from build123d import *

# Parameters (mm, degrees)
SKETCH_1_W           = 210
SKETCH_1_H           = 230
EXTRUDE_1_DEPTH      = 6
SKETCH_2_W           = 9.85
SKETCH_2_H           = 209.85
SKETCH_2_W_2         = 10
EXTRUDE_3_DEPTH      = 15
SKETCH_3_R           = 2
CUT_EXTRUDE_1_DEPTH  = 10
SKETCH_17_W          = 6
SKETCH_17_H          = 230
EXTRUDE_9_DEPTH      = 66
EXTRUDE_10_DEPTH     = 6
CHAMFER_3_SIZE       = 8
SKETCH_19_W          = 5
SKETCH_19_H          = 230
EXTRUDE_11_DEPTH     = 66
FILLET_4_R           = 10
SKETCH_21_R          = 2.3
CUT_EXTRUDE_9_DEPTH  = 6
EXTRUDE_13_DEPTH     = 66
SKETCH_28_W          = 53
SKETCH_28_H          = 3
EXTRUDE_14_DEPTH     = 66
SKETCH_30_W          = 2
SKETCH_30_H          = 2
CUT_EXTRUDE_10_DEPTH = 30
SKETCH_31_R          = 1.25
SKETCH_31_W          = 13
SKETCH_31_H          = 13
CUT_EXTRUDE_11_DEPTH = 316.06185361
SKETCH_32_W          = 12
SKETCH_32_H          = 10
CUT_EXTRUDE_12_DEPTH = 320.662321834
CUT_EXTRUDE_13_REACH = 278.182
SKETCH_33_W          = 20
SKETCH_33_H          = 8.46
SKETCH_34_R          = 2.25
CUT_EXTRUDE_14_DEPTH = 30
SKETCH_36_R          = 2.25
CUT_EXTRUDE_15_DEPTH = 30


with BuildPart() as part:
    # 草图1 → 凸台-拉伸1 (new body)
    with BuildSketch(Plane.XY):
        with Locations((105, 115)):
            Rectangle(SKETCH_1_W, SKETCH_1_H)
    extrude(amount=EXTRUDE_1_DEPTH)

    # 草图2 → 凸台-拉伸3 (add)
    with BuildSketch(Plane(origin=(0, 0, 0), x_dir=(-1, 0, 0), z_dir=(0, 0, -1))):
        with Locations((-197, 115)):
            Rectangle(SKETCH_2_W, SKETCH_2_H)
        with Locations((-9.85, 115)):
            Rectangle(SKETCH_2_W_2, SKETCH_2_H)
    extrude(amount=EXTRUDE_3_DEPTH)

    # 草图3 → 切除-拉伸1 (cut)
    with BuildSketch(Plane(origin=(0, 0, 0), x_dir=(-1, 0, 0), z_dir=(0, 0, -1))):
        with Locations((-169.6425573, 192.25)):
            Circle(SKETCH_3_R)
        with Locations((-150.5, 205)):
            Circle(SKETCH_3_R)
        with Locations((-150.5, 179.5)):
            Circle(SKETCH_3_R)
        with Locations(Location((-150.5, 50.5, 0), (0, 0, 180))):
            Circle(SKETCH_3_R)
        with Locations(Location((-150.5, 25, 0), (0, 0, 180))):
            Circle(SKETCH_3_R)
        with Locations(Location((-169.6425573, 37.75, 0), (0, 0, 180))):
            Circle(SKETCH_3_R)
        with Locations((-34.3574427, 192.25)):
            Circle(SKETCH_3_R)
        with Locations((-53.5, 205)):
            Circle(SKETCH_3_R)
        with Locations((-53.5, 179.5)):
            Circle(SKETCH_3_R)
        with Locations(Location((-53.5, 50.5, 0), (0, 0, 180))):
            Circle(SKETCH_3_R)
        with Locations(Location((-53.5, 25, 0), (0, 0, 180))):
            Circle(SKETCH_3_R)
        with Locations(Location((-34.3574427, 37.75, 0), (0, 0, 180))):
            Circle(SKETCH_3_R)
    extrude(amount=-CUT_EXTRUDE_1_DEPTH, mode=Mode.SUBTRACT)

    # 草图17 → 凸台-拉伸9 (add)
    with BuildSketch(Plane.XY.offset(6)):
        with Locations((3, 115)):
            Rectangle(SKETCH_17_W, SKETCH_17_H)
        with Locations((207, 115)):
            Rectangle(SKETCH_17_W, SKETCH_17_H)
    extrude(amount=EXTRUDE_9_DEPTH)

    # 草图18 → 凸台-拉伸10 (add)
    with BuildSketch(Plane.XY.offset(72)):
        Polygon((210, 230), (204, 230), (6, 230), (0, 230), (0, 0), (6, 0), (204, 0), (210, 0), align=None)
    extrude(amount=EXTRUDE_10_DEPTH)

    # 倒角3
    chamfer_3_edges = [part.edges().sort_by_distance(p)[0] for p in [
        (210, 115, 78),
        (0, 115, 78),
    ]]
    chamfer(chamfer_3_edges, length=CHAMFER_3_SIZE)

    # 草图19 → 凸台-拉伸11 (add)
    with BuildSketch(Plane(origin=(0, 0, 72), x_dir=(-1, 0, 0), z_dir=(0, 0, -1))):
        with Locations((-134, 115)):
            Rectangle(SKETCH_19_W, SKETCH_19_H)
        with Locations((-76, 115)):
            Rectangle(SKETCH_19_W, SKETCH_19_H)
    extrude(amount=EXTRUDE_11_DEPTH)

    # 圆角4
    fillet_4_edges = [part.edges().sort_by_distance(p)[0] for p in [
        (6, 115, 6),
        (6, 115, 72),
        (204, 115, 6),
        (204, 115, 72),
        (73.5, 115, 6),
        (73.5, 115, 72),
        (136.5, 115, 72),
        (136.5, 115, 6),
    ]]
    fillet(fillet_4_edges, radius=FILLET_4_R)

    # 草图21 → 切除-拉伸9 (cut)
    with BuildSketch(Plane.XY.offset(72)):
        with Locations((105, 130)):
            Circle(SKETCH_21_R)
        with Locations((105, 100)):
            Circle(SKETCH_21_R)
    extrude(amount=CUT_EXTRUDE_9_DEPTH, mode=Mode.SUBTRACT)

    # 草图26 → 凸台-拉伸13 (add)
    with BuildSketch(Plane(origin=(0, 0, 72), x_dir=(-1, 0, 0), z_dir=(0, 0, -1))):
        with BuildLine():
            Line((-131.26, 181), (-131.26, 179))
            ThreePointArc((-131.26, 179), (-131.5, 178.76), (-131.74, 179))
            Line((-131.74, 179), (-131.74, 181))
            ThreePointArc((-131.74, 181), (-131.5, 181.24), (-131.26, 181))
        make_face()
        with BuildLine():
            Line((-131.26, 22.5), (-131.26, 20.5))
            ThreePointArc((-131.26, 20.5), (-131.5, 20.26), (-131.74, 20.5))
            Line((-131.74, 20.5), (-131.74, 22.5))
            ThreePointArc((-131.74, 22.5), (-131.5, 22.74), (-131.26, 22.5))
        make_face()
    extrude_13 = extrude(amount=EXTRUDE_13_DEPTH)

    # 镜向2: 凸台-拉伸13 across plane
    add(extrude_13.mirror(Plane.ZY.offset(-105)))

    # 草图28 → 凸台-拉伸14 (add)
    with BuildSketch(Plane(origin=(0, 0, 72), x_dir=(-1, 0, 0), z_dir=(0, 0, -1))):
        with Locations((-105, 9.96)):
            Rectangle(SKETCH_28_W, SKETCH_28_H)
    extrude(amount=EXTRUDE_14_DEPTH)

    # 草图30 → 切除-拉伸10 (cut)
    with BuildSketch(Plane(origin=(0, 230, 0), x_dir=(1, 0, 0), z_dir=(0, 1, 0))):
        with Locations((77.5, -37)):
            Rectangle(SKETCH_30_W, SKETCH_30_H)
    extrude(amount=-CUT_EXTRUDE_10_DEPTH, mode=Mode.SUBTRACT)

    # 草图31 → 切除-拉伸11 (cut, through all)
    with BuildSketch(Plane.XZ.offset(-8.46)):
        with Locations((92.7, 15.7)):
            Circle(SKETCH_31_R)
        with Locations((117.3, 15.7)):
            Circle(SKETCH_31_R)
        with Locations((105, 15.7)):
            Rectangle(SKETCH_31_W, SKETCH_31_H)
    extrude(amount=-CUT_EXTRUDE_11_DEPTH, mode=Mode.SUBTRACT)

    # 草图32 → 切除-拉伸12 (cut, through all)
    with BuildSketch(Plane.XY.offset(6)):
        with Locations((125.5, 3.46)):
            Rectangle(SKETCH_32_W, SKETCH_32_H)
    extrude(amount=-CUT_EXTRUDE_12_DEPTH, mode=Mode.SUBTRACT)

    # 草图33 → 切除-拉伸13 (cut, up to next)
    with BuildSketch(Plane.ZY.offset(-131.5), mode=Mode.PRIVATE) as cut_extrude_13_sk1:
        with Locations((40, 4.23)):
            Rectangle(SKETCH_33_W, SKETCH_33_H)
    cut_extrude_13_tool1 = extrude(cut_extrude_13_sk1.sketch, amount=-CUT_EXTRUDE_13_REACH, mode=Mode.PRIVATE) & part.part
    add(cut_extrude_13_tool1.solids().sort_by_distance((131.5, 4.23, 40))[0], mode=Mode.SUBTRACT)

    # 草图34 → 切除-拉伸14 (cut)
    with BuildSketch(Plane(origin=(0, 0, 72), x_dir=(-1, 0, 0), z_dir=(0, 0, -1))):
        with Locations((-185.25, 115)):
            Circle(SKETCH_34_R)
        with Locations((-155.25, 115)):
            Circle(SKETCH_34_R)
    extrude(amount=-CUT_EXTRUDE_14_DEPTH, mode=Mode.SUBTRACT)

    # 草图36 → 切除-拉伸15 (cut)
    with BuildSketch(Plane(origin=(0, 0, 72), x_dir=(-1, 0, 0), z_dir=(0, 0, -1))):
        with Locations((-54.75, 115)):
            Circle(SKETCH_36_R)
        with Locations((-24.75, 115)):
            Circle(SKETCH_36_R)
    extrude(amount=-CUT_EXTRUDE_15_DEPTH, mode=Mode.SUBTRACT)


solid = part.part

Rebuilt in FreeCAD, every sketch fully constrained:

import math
import FreeCAD as App
import Part
import Sketcher

V = App.Vector


def edges_at(feature, points):
    """Names of the edges that pass closest to the given points."""
    edges = feature.Shape.Edges
    near = lambda p: min(range(len(edges)), key=lambda i: edges[i].distToShape(Part.Vertex(*p))[0])
    return sorted({f"Edge{near(p) + 1}" for p in points})

doc = App.newDocument("Part")
body = doc.addObject("PartDesign::Body", "Body")

# Sketch on XY plane
sketch1 = body.newObject("Sketcher::SketchObject", "Sketch")
sketch1.AttachmentSupport = (doc.getObject("XY_Plane"), [""])
sketch1.MapMode = "FlatFace"
sketch1.addGeometry(Part.LineSegment(V(0, 230, 0), V(0, 0, 0)), False)
sketch1.addGeometry(Part.LineSegment(V(0, 0, 0), V(210, 0, 0)), False)
sketch1.addGeometry(Part.LineSegment(V(210, 0, 0), V(210, 230, 0)), False)
sketch1.addGeometry(Part.LineSegment(V(210, 230, 0), V(0, 230, 0)), False)
sketch1.addConstraint(Sketcher.Constraint("Coincident", 0, 2, 1, 1))
sketch1.addConstraint(Sketcher.Constraint("Coincident", 1, 2, 2, 1))
sketch1.addConstraint(Sketcher.Constraint("Coincident", 2, 2, 3, 1))
sketch1.addConstraint(Sketcher.Constraint("Coincident", 3, 2, 0, 1))
sketch1.addConstraint(Sketcher.Constraint("Vertical", 0))
sketch1.addConstraint(Sketcher.Constraint("Horizontal", 1))
sketch1.addConstraint(Sketcher.Constraint("Vertical", 2))
sketch1.addConstraint(Sketcher.Constraint("Horizontal", 3))
sketch1.addConstraint(Sketcher.Constraint("Coincident", 0, 2, -1, 1))
sketch1.addConstraint(Sketcher.Constraint("DistanceX", 1, 1, 1, 2, 210.0))
sketch1.addConstraint(Sketcher.Constraint("DistanceY", 0, 2, 0, 1, 230.0))
pad1 = body.newObject("PartDesign::Pad", "Pad")
pad1.Profile = sketch1
pad1.Length = 6

# Sketch on XY plane
sketch2 = body.newObject("Sketcher::SketchObject", "Sketch001")
sketch2.AttachmentSupport = (doc.getObject("XY_Plane"), [""])
sketch2.MapMode = "FlatFace"
sketch2.addGeometry(Part.LineSegment(V(202, 220, 0), V(202, 10, 0)), False)
sketch2.addGeometry(Part.LineSegment(V(202, 10, 0), V(192, 10, 0)), False)
sketch2.addGeometry(Part.LineSegment(V(192, 10, 0), V(192, 220, 0)), False)
sketch2.addGeometry(Part.LineSegment(V(192, 220, 0), V(202, 220, 0)), False)
sketch2.addGeometry(Part.LineSegment(V(15, 220, 0), V(15, 10, 0)), False)
sketch2.addGeometry(Part.LineSegment(V(15, 10, 0), V(5, 10, 0)), False)
sketch2.addGeometry(Part.LineSegment(V(5, 10, 0), V(5, 220, 0)), False)
sketch2.addGeometry(Part.LineSegment(V(5, 220, 0), V(15, 220, 0)), False)
sketch2.addConstraint(Sketcher.Constraint("Coincident", 0, 2, 1, 1))
sketch2.addConstraint(Sketcher.Constraint("Coincident", 1, 2, 2, 1))
sketch2.addConstraint(Sketcher.Constraint("Coincident", 2, 2, 3, 1))
sketch2.addConstraint(Sketcher.Constraint("Coincident", 3, 2, 0, 1))
sketch2.addConstraint(Sketcher.Constraint("Coincident", 4, 2, 5, 1))
sketch2.addConstraint(Sketcher.Constraint("Coincident", 5, 2, 6, 1))
sketch2.addConstraint(Sketcher.Constraint("Coincident", 6, 2, 7, 1))
sketch2.addConstraint(Sketcher.Constraint("Coincident", 7, 2, 4, 1))
sketch2.addConstraint(Sketcher.Constraint("Vertical", 0))
sketch2.addConstraint(Sketcher.Constraint("Horizontal", 1))
sketch2.addConstraint(Sketcher.Constraint("Vertical", 2))
sketch2.addConstraint(Sketcher.Constraint("Horizontal", 3))
sketch2.addConstraint(Sketcher.Constraint("Vertical", 4))
sketch2.addConstraint(Sketcher.Constraint("Horizontal", 5))
sketch2.addConstraint(Sketcher.Constraint("Vertical", 6))
sketch2.addConstraint(Sketcher.Constraint("Horizontal", 7))
sketch2.addConstraint(Sketcher.Constraint("Horizontal", 1, 2, 4, 2))
sketch2.addConstraint(Sketcher.Constraint("Horizontal", 3, 2, 6, 2))
sketch2.addConstraint(Sketcher.Constraint("DistanceX", 5, 2, 5, 1, 10.0))
sketch2.addConstraint(Sketcher.Constraint("DistanceX", 1, 2, 1, 1, 9.85))
sketch2.addConstraint(Sketcher.Constraint("DistanceY", 0, 2, 0, 1, 209.85))
sketch2.addConstraint(Sketcher.Constraint("DistanceX", -1, 1, 4, 2, 14.85))
sketch2.addConstraint(Sketcher.Constraint("DistanceX", -1, 1, 0, 2, 201.925))
sketch2.addConstraint(Sketcher.Constraint("DistanceY", -1, 1, 0, 2, 10.075))
pad2 = body.newObject("PartDesign::Pad", "Pad001")
pad2.Profile = sketch2
pad2.Length = 15
pad2.Reversed = True

# Sketch on XY plane
sketch3 = body.newObject("Sketcher::SketchObject", "Sketch002")
sketch3.AttachmentSupport = (doc.getObject("XY_Plane"), [""])
sketch3.MapMode = "FlatFace"
sketch3.addGeometry(Part.Circle(V(169.6, 192.2, 0), V(0, 0, 1), 2), False)
sketch3.addGeometry(Part.Circle(V(150.5, 205, 0), V(0, 0, 1), 2), False)
sketch3.addGeometry(Part.Circle(V(150.5, 179.5, 0), V(0, 0, 1), 2), False)
sketch3.addGeometry(Part.Circle(V(150.5, 50.5, 0), V(0, 0, 1), 2), False)
sketch3.addGeometry(Part.Circle(V(150.5, 25, 0), V(0, 0, 1), 2), False)
sketch3.addGeometry(Part.Circle(V(169.6, 37.8, 0), V(0, 0, 1), 2), False)
sketch3.addGeometry(Part.Circle(V(34.4, 192.2, 0), V(0, 0, 1), 2), False)
sketch3.addGeometry(Part.Circle(V(53.5, 205, 0), V(0, 0, 1), 2), False)
sketch3.addGeometry(Part.Circle(V(53.5, 179.5, 0), V(0, 0, 1), 2), False)
sketch3.addGeometry(Part.Circle(V(53.5, 50.5, 0), V(0, 0, 1), 2), False)
sketch3.addGeometry(Part.Circle(V(53.5, 25, 0), V(0, 0, 1), 2), False)
sketch3.addGeometry(Part.Circle(V(34.4, 37.8, 0), V(0, 0, 1), 2), False)
sketch3.addConstraint(Sketcher.Constraint("Equal", 0, 1))
sketch3.addConstraint(Sketcher.Constraint("Equal", 1, 2))
sketch3.addConstraint(Sketcher.Constraint("Equal", 2, 3))
sketch3.addConstraint(Sketcher.Constraint("Equal", 3, 4))
sketch3.addConstraint(Sketcher.Constraint("Equal", 4, 5))
sketch3.addConstraint(Sketcher.Constraint("Equal", 5, 6))
sketch3.addConstraint(Sketcher.Constraint("Equal", 6, 7))
sketch3.addConstraint(Sketcher.Constraint("Equal", 7, 8))
sketch3.addConstraint(Sketcher.Constraint("Equal", 8, 9))
sketch3.addConstraint(Sketcher.Constraint("Equal", 9, 10))
sketch3.addConstraint(Sketcher.Constraint("Equal", 10, 11))
sketch3.addConstraint(Sketcher.Constraint("Horizontal", 0, 3, 6, 3))
sketch3.addConstraint(Sketcher.Constraint("Horizontal", 1, 3, 7, 3))
sketch3.addConstraint(Sketcher.Constraint("Horizontal", 2, 3, 8, 3))
sketch3.addConstraint(Sketcher.Constraint("Horizontal", 3, 3, 9, 3))
sketch3.addConstraint(Sketcher.Constraint("Horizontal", 4, 3, 10, 3))
sketch3.addConstraint(Sketcher.Constraint("Horizontal", 5, 3, 11, 3))
sketch3.addConstraint(Sketcher.Constraint("Vertical", 1, 3, 2, 3))
sketch3.addConstraint(Sketcher.Constraint("Vertical", 2, 3, 3, 3))
sketch3.addConstraint(Sketcher.Constraint("Vertical", 3, 3, 4, 3))
sketch3.addConstraint(Sketcher.Constraint("Vertical", 0, 3, 5, 3))
sketch3.addConstraint(Sketcher.Constraint("Vertical", 7, 3, 8, 3))
sketch3.addConstraint(Sketcher.Constraint("Vertical", 8, 3, 9, 3))
sketch3.addConstraint(Sketcher.Constraint("Vertical", 9, 3, 10, 3))
sketch3.addConstraint(Sketcher.Constraint("Vertical", 6, 3, 11, 3))
sketch3.addConstraint(Sketcher.Constraint("Diameter", 0, 4.0))
sketch3.addConstraint(Sketcher.Constraint("DistanceY", -1, 1, 1, 3, 205.0))
sketch3.addConstraint(Sketcher.Constraint("DistanceY", -1, 1, 4, 3, 25.0))
sketch3.addConstraint(Sketcher.Constraint("DistanceY", 3, 3, 2, 3, 129.0))
sketch3.addConstraint(Sketcher.Constraint("DistanceX", 7, 3, 1, 3, 97.0))
sketch3.addConstraint(Sketcher.Constraint("DistanceX", -1, 1, 1, 3, 150.5))
sketch3.addConstraint(Sketcher.Constraint("DistanceY", -1, 1, 2, 3, 179.5))
sketch3.addConstraint(Sketcher.Constraint("DistanceY", 5, 3, 0, 3, 154.5))
sketch3.addConstraint(Sketcher.Constraint("DistanceY", -1, 1, 0, 3, 192.25))
sketch3.addConstraint(Sketcher.Constraint("DistanceX", -1, 1, 0, 3, 169.642557))
sketch3.addConstraint(Sketcher.Constraint("DistanceX", -1, 1, 6, 3, 34.357443))
pocket1 = body.newObject("PartDesign::Pocket", "Pocket")
pocket1.Profile = sketch3
pocket1.Length = 10
pocket1.Reversed = True

# Sketch on XY plane
sketch4 = body.newObject("Sketcher::SketchObject", "Sketch003")
sketch4.AttachmentSupport = (doc.getObject("XY_Plane"), [""])
sketch4.MapMode = "FlatFace"
sketch4.AttachmentOffset = App.Placement(V(0, 0, 6), App.Rotation())
sketch4.addGeometry(Part.LineSegment(V(0, 230, 0), V(0, 0, 0)), False)
sketch4.addGeometry(Part.LineSegment(V(0, 0, 0), V(6, 0, 0)), False)
sketch4.addGeometry(Part.LineSegment(V(6, 0, 0), V(6, 230, 0)), False)
sketch4.addGeometry(Part.LineSegment(V(6, 230, 0), V(0, 230, 0)), False)
sketch4.addGeometry(Part.LineSegment(V(204, 230, 0), V(204, 0, 0)), False)
sketch4.addGeometry(Part.LineSegment(V(204, 0, 0), V(210, 0, 0)), False)
sketch4.addGeometry(Part.LineSegment(V(210, 0, 0), V(210, 230, 0)), False)
sketch4.addGeometry(Part.LineSegment(V(210, 230, 0), V(204, 230, 0)), False)
sketch4.addConstraint(Sketcher.Constraint("Coincident", 0, 2, 1, 1))
sketch4.addConstraint(Sketcher.Constraint("Coincident", 1, 2, 2, 1))
sketch4.addConstraint(Sketcher.Constraint("Coincident", 2, 2, 3, 1))
sketch4.addConstraint(Sketcher.Constraint("Coincident", 3, 2, 0, 1))
sketch4.addConstraint(Sketcher.Constraint("Coincident", 4, 2, 5, 1))
sketch4.addConstraint(Sketcher.Constraint("Coincident", 5, 2, 6, 1))
sketch4.addConstraint(Sketcher.Constraint("Coincident", 6, 2, 7, 1))
sketch4.addConstraint(Sketcher.Constraint("Coincident", 7, 2, 4, 1))
sketch4.addConstraint(Sketcher.Constraint("Vertical", 0))
sketch4.addConstraint(Sketcher.Constraint("Horizontal", 1))
sketch4.addConstraint(Sketcher.Constraint("Vertical", 2))
sketch4.addConstraint(Sketcher.Constraint("Horizontal", 3))
sketch4.addConstraint(Sketcher.Constraint("Vertical", 4))
sketch4.addConstraint(Sketcher.Constraint("Horizontal", 5))
sketch4.addConstraint(Sketcher.Constraint("Vertical", 6))
sketch4.addConstraint(Sketcher.Constraint("Horizontal", 7))
sketch4.addConstraint(Sketcher.Constraint("Coincident", 0, 2, -1, 1))
sketch4.addConstraint(Sketcher.Constraint("PointOnObject", 4, 2, -1))
sketch4.addConstraint(Sketcher.Constraint("Horizontal", 3, 2, 6, 2))
sketch4.addConstraint(Sketcher.Constraint("Equal", 3, 5))
sketch4.addConstraint(Sketcher.Constraint("DistanceX", 1, 1, 1, 2, 6.0))
sketch4.addConstraint(Sketcher.Constraint("DistanceY", 0, 2, 0, 1, 230.0))
sketch4.addConstraint(Sketcher.Constraint("DistanceX", -1, 1, 4, 2, 204.0))
pad3 = body.newObject("PartDesign::Pad", "Pad002")
pad3.Profile = sketch4
pad3.Length = 66

# Sketch on XY plane
sketch5 = body.newObject("Sketcher::SketchObject", "Sketch004")
sketch5.AttachmentSupport = (doc.getObject("XY_Plane"), [""])
sketch5.MapMode = "FlatFace"
sketch5.AttachmentOffset = App.Placement(V(0, 0, 72), App.Rotation())
sketch5.addGeometry(Part.LineSegment(V(210, 230, 0), V(0, 230, 0)), False)
sketch5.addGeometry(Part.LineSegment(V(0, 230, 0), V(0, 0, 0)), False)
sketch5.addGeometry(Part.LineSegment(V(0, 0, 0), V(210, 0, 0)), False)
sketch5.addGeometry(Part.LineSegment(V(210, 0, 0), V(210, 230, 0)), False)
sketch5.addConstraint(Sketcher.Constraint("Coincident", 0, 2, 1, 1))
sketch5.addConstraint(Sketcher.Constraint("Coincident", 1, 2, 2, 1))
sketch5.addConstraint(Sketcher.Constraint("Coincident", 2, 2, 3, 1))
sketch5.addConstraint(Sketcher.Constraint("Coincident", 3, 2, 0, 1))
sketch5.addConstraint(Sketcher.Constraint("Horizontal", 0))
sketch5.addConstraint(Sketcher.Constraint("Vertical", 1))
sketch5.addConstraint(Sketcher.Constraint("Horizontal", 2))
sketch5.addConstraint(Sketcher.Constraint("Vertical", 3))
sketch5.addConstraint(Sketcher.Constraint("Coincident", 1, 2, -1, 1))
sketch5.addConstraint(Sketcher.Constraint("DistanceX", 0, 2, 0, 1, 210.0))
sketch5.addConstraint(Sketcher.Constraint("DistanceY", 1, 2, 1, 1, 230.0))
pad4 = body.newObject("PartDesign::Pad", "Pad003")
pad4.Profile = sketch5
pad4.Length = 6
doc.recompute()

chamfer = body.newObject("PartDesign::Chamfer", "Chamfer")
chamfer.Base = (pad4, edges_at(pad4, [(210, 115, 78), (0, 115, 78)]))
chamfer.Size = 8

# Sketch on XY plane
sketch6 = body.newObject("Sketcher::SketchObject", "Sketch005")
sketch6.AttachmentSupport = (doc.getObject("XY_Plane"), [""])
sketch6.MapMode = "FlatFace"
sketch6.AttachmentOffset = App.Placement(V(0, 0, 72), App.Rotation())
sketch6.addGeometry(Part.LineSegment(V(136, 230, 0), V(136, 0, 0)), False)
sketch6.addGeometry(Part.LineSegment(V(136, 0, 0), V(132, 0, 0)), False)
sketch6.addGeometry(Part.LineSegment(V(132, 0, 0), V(132, 230, 0)), False)
sketch6.addGeometry(Part.LineSegment(V(132, 230, 0), V(136, 230, 0)), False)
sketch6.addGeometry(Part.LineSegment(V(78, 230, 0), V(78, 0, 0)), False)
sketch6.addGeometry(Part.LineSegment(V(78, 0, 0), V(74, 0, 0)), False)
sketch6.addGeometry(Part.LineSegment(V(74, 0, 0), V(74, 230, 0)), False)
sketch6.addGeometry(Part.LineSegment(V(74, 230, 0), V(78, 230, 0)), False)
sketch6.addConstraint(Sketcher.Constraint("Coincident", 0, 2, 1, 1))
sketch6.addConstraint(Sketcher.Constraint("Coincident", 1, 2, 2, 1))
sketch6.addConstraint(Sketcher.Constraint("Coincident", 2, 2, 3, 1))
sketch6.addConstraint(Sketcher.Constraint("Coincident", 3, 2, 0, 1))
sketch6.addConstraint(Sketcher.Constraint("Coincident", 4, 2, 5, 1))
sketch6.addConstraint(Sketcher.Constraint("Coincident", 5, 2, 6, 1))
sketch6.addConstraint(Sketcher.Constraint("Coincident", 6, 2, 7, 1))
sketch6.addConstraint(Sketcher.Constraint("Coincident", 7, 2, 4, 1))
sketch6.addConstraint(Sketcher.Constraint("Vertical", 0))
sketch6.addConstraint(Sketcher.Constraint("Horizontal", 1))
sketch6.addConstraint(Sketcher.Constraint("Vertical", 2))
sketch6.addConstraint(Sketcher.Constraint("Horizontal", 3))
sketch6.addConstraint(Sketcher.Constraint("Vertical", 4))
sketch6.addConstraint(Sketcher.Constraint("Horizontal", 5))
sketch6.addConstraint(Sketcher.Constraint("Vertical", 6))
sketch6.addConstraint(Sketcher.Constraint("Horizontal", 7))
sketch6.addConstraint(Sketcher.Constraint("PointOnObject", 0, 2, -1))
sketch6.addConstraint(Sketcher.Constraint("PointOnObject", 4, 2, -1))
sketch6.addConstraint(Sketcher.Constraint("Horizontal", 3, 2, 6, 2))
sketch6.addConstraint(Sketcher.Constraint("Equal", 3, 5))
sketch6.addConstraint(Sketcher.Constraint("DistanceX", 1, 2, 1, 1, 5.0))
sketch6.addConstraint(Sketcher.Constraint("DistanceY", 0, 2, 0, 1, 230.0))
sketch6.addConstraint(Sketcher.Constraint("DistanceX", 4, 2, 1, 2, 53.0))
sketch6.addConstraint(Sketcher.Constraint("DistanceX", -1, 1, 0, 2, 136.5))
pad5 = body.newObject("PartDesign::Pad", "Pad004")
pad5.Profile = sketch6
pad5.Length = 66
pad5.Reversed = True
doc.recompute()

fillet = body.newObject("PartDesign::Fillet", "Fillet")
fillet.Base = (pad5, edges_at(pad5, [
    (6, 115, 6),
    (6, 115, 72),
    (204, 115, 6),
    (204, 115, 72),
    (73.5, 115, 6),
    (73.5, 115, 72),
    (136.5, 115, 72),
    (136.5, 115, 6),
]))
fillet.Radius = 10

# Sketch on XY plane
sketch7 = body.newObject("Sketcher::SketchObject", "Sketch006")
sketch7.AttachmentSupport = (doc.getObject("XY_Plane"), [""])
sketch7.MapMode = "FlatFace"
sketch7.AttachmentOffset = App.Placement(V(0, 0, 72), App.Rotation())
sketch7.addGeometry(Part.Circle(V(105, 130, 0), V(0, 0, 1), 2.3), False)
sketch7.addGeometry(Part.Circle(V(105, 100, 0), V(0, 0, 1), 2.3), False)
sketch7.addConstraint(Sketcher.Constraint("Equal", 0, 1))
sketch7.addConstraint(Sketcher.Constraint("Vertical", 0, 3, 1, 3))
sketch7.addConstraint(Sketcher.Constraint("Diameter", 0, 4.6))
sketch7.addConstraint(Sketcher.Constraint("DistanceX", -1, 1, 0, 3, 105.0))
sketch7.addConstraint(Sketcher.Constraint("DistanceY", -1, 1, 0, 3, 130.0))
sketch7.addConstraint(Sketcher.Constraint("DistanceY", -1, 1, 1, 3, 100.0))
pocket2 = body.newObject("PartDesign::Pocket", "Pocket001")
pocket2.Profile = sketch7
pocket2.Length = 6
pocket2.Reversed = True

# Sketch on XY plane
sketch8 = body.newObject("Sketcher::SketchObject", "Sketch007")
sketch8.AttachmentSupport = (doc.getObject("XY_Plane"), [""])
sketch8.MapMode = "FlatFace"
sketch8.AttachmentOffset = App.Placement(V(0, 0, 72), App.Rotation())
sketch8.addGeometry(Part.LineSegment(V(131.26, 179, 0), V(131.26, 181, 0)), False)
sketch8.addGeometry(Part.ArcOfCircle(Part.Circle(V(131.5, 181, 0), V(0, 0, 1), 0.24), math.radians(0), math.radians(180)), False)
sketch8.addGeometry(Part.LineSegment(V(131.74, 181, 0), V(131.74, 179, 0)), False)
sketch8.addGeometry(Part.ArcOfCircle(Part.Circle(V(131.5, 179, 0), V(0, 0, 1), 0.24), math.radians(180), math.radians(360)), False)
sketch8.addGeometry(Part.LineSegment(V(131.26, 20.5, 0), V(131.26, 22.5, 0)), False)
sketch8.addGeometry(Part.ArcOfCircle(Part.Circle(V(131.5, 22.5, 0), V(0, 0, 1), 0.24), math.radians(0), math.radians(180)), False)
sketch8.addGeometry(Part.LineSegment(V(131.74, 22.5, 0), V(131.74, 20.5, 0)), False)
sketch8.addGeometry(Part.ArcOfCircle(Part.Circle(V(131.5, 20.5, 0), V(0, 0, 1), 0.24), math.radians(180), math.radians(360)), False)
sketch8.addConstraint(Sketcher.Constraint("Tangent", 0, 2, 1, 2))
sketch8.addConstraint(Sketcher.Constraint("Tangent", 1, 1, 2, 1))
sketch8.addConstraint(Sketcher.Constraint("Tangent", 2, 2, 3, 2))
sketch8.addConstraint(Sketcher.Constraint("Tangent", 3, 1, 0, 1))
sketch8.addConstraint(Sketcher.Constraint("Tangent", 4, 2, 5, 2))
sketch8.addConstraint(Sketcher.Constraint("Tangent", 5, 1, 6, 1))
sketch8.addConstraint(Sketcher.Constraint("Tangent", 6, 2, 7, 2))
sketch8.addConstraint(Sketcher.Constraint("Tangent", 7, 1, 4, 1))
sketch8.addConstraint(Sketcher.Constraint("Vertical", 0))
sketch8.addConstraint(Sketcher.Constraint("Vertical", 2))
sketch8.addConstraint(Sketcher.Constraint("Vertical", 4))
sketch8.addConstraint(Sketcher.Constraint("Vertical", 6))
sketch8.addConstraint(Sketcher.Constraint("Equal", 3, 5))
sketch8.addConstraint(Sketcher.Constraint("Vertical", 3, 3, 5, 3))
sketch8.addConstraint(Sketcher.Constraint("Equal", 2, 4))
sketch8.addConstraint(Sketcher.Constraint("DistanceY", 0, 1, 0, 2, 2.0))
sketch8.addConstraint(Sketcher.Constraint("Radius", 1, 0.24))
sketch8.addConstraint(Sketcher.Constraint("DistanceY", -1, 1, 1, 3, 181.0))
sketch8.addConstraint(Sketcher.Constraint("DistanceX", -1, 1, 1, 3, 131.5))
sketch8.addConstraint(Sketcher.Constraint("DistanceY", -1, 1, 5, 3, 22.5))
pad6 = body.newObject("PartDesign::Pad", "Pad005")
pad6.Profile = sketch8
pad6.Length = 66
pad6.Reversed = True
doc.recompute()

datumplane = body.newObject("PartDesign::Plane", "DatumPlane")
datumplane.AttachmentSupport = (doc.getObject("YZ_Plane"), [""])
datumplane.MapMode = "FlatFace"
datumplane.AttachmentOffset = App.Placement(V(0, 0, 105), App.Rotation())
mirrored = body.newObject("PartDesign::Mirrored", "Mirrored")
mirrored.Originals = [pad6]
mirrored.MirrorPlane = (datumplane, [""])
body.Tip = mirrored

# Sketch on XY plane
sketch9 = body.newObject("Sketcher::SketchObject", "Sketch008")
sketch9.AttachmentSupport = (doc.getObject("XY_Plane"), [""])
sketch9.MapMode = "FlatFace"
sketch9.AttachmentOffset = App.Placement(V(0, 0, 72), App.Rotation())
sketch9.addGeometry(Part.LineSegment(V(131.5, 11.5, 0), V(131.5, 8.5, 0)), False)
sketch9.addGeometry(Part.LineSegment(V(131.5, 8.5, 0), V(78.5, 8.5, 0)), False)
sketch9.addGeometry(Part.LineSegment(V(78.5, 8.5, 0), V(78.5, 11.5, 0)), False)
sketch9.addGeometry(Part.LineSegment(V(78.5, 11.5, 0), V(131.5, 11.5, 0)), False)
sketch9.addConstraint(Sketcher.Constraint("Coincident", 0, 2, 1, 1))
sketch9.addConstraint(Sketcher.Constraint("Coincident", 1, 2, 2, 1))
sketch9.addConstraint(Sketcher.Constraint("Coincident", 2, 2, 3, 1))
sketch9.addConstraint(Sketcher.Constraint("Coincident", 3, 2, 0, 1))
sketch9.addConstraint(Sketcher.Constraint("Vertical", 0))
sketch9.addConstraint(Sketcher.Constraint("Horizontal", 1))
sketch9.addConstraint(Sketcher.Constraint("Vertical", 2))
sketch9.addConstraint(Sketcher.Constraint("Horizontal", 3))
sketch9.addConstraint(Sketcher.Constraint("DistanceX", 1, 2, 1, 1, 53.0))
sketch9.addConstraint(Sketcher.Constraint("DistanceY", 0, 2, 0, 1, 3.0))
sketch9.addConstraint(Sketcher.Constraint("DistanceX", -1, 1, 0, 2, 131.5))
sketch9.addConstraint(Sketcher.Constraint("DistanceY", -1, 1, 0, 2, 8.46))
pad7 = body.newObject("PartDesign::Pad", "Pad006")
pad7.Profile = sketch9
pad7.Length = 66
pad7.Reversed = True

# Sketch on XZ plane
sketch10 = body.newObject("Sketcher::SketchObject", "Sketch009")
sketch10.AttachmentSupport = (doc.getObject("XZ_Plane"), [""])
sketch10.MapMode = "FlatFace"
sketch10.AttachmentOffset = App.Placement(V(0, 0, -230), App.Rotation())
sketch10.addGeometry(Part.LineSegment(V(76.5, 36, 0), V(76.5, 38, 0)), False)
sketch10.addGeometry(Part.LineSegment(V(76.5, 38, 0), V(78.5, 38, 0)), False)
sketch10.addGeometry(Part.LineSegment(V(78.5, 38, 0), V(78.5, 36, 0)), False)
sketch10.addGeometry(Part.LineSegment(V(78.5, 36, 0), V(76.5, 36, 0)), False)
sketch10.addConstraint(Sketcher.Constraint("Coincident", 0, 2, 1, 1))
sketch10.addConstraint(Sketcher.Constraint("Coincident", 1, 2, 2, 1))
sketch10.addConstraint(Sketcher.Constraint("Coincident", 2, 2, 3, 1))
sketch10.addConstraint(Sketcher.Constraint("Coincident", 3, 2, 0, 1))
sketch10.addConstraint(Sketcher.Constraint("Vertical", 0))
sketch10.addConstraint(Sketcher.Constraint("Horizontal", 1))
sketch10.addConstraint(Sketcher.Constraint("Vertical", 2))
sketch10.addConstraint(Sketcher.Constraint("Horizontal", 3))
sketch10.addConstraint(Sketcher.Constraint("Equal", 3, 0))
sketch10.addConstraint(Sketcher.Constraint("DistanceX", 1, 1, 1, 2, 2.0))
sketch10.addConstraint(Sketcher.Constraint("DistanceY", -1, 1, 0, 2, 38.0))
sketch10.addConstraint(Sketcher.Constraint("DistanceX", -1, 1, 0, 2, 76.5))
pocket3 = body.newObject("PartDesign::Pocket", "Pocket002")
pocket3.Profile = sketch10
pocket3.Length = 30
pocket3.Reversed = True

# Sketch on XZ plane
sketch11 = body.newObject("Sketcher::SketchObject", "Sketch010")
sketch11.AttachmentSupport = (doc.getObject("XZ_Plane"), [""])
sketch11.MapMode = "FlatFace"
sketch11.AttachmentOffset = App.Placement(V(0, 0, -8.46), App.Rotation())
sketch11.addGeometry(Part.Circle(V(92.7, 15.7, 0), V(0, 0, 1), 1.2), False)
sketch11.addGeometry(Part.Circle(V(117.3, 15.7, 0), V(0, 0, 1), 1.2), False)
sketch11.addGeometry(Part.LineSegment(V(98.5, 22.2, 0), V(98.5, 9.2, 0)), False)
sketch11.addGeometry(Part.LineSegment(V(98.5, 9.2, 0), V(111.5, 9.2, 0)), False)
sketch11.addGeometry(Part.LineSegment(V(111.5, 9.2, 0), V(111.5, 22.2, 0)), False)
sketch11.addGeometry(Part.LineSegment(V(111.5, 22.2, 0), V(98.5, 22.2, 0)), False)
sketch11.addConstraint(Sketcher.Constraint("Coincident", 2, 2, 3, 1))
sketch11.addConstraint(Sketcher.Constraint("Coincident", 3, 2, 4, 1))
sketch11.addConstraint(Sketcher.Constraint("Coincident", 4, 2, 5, 1))
sketch11.addConstraint(Sketcher.Constraint("Coincident", 5, 2, 2, 1))
sketch11.addConstraint(Sketcher.Constraint("Vertical", 2))
sketch11.addConstraint(Sketcher.Constraint("Horizontal", 3))
sketch11.addConstraint(Sketcher.Constraint("Vertical", 4))
sketch11.addConstraint(Sketcher.Constraint("Horizontal", 5))
sketch11.addConstraint(Sketcher.Constraint("Equal", 0, 1))
sketch11.addConstraint(Sketcher.Constraint("Horizontal", 0, 3, 1, 3))
sketch11.addConstraint(Sketcher.Constraint("Equal", 5, 2))
sketch11.addConstraint(Sketcher.Constraint("Diameter", 0, 2.5))
sketch11.addConstraint(Sketcher.Constraint("DistanceX", 3, 1, 3, 2, 13.0))
sketch11.addConstraint(Sketcher.Constraint("DistanceX", -1, 1, 0, 3, 92.7))
sketch11.addConstraint(Sketcher.Constraint("DistanceY", -1, 1, 0, 3, 15.7))
sketch11.addConstraint(Sketcher.Constraint("DistanceX", -1, 1, 1, 3, 117.3))
sketch11.addConstraint(Sketcher.Constraint("DistanceX", -1, 1, 2, 2, 98.5))
sketch11.addConstraint(Sketcher.Constraint("DistanceY", -1, 1, 2, 2, 9.2))
pocket4 = body.newObject("PartDesign::Pocket", "Pocket003")
pocket4.Profile = sketch11
pocket4.Type = "ThroughAll"

# Sketch on XY plane
sketch12 = body.newObject("Sketcher::SketchObject", "Sketch011")
sketch12.AttachmentSupport = (doc.getObject("XY_Plane"), [""])
sketch12.MapMode = "FlatFace"
sketch12.AttachmentOffset = App.Placement(V(0, 0, 6), App.Rotation())
sketch12.addGeometry(Part.LineSegment(V(120, 8, 0), V(120, -2, 0)), False)
sketch12.addGeometry(Part.LineSegment(V(120, -2, 0), V(132, -2, 0)), False)
sketch12.addGeometry(Part.LineSegment(V(132, -2, 0), V(132, 8, 0)), False)
sketch12.addGeometry(Part.LineSegment(V(132, 8, 0), V(120, 8, 0)), False)
sketch12.addConstraint(Sketcher.Constraint("Coincident", 0, 2, 1, 1))
sketch12.addConstraint(Sketcher.Constraint("Coincident", 1, 2, 2, 1))
sketch12.addConstraint(Sketcher.Constraint("Coincident", 2, 2, 3, 1))
sketch12.addConstraint(Sketcher.Constraint("Coincident", 3, 2, 0, 1))
sketch12.addConstraint(Sketcher.Constraint("Vertical", 0))
sketch12.addConstraint(Sketcher.Constraint("Horizontal", 1))
sketch12.addConstraint(Sketcher.Constraint("Vertical", 2))
sketch12.addConstraint(Sketcher.Constraint("Horizontal", 3))
sketch12.addConstraint(Sketcher.Constraint("DistanceX", 1, 1, 1, 2, 12.0))
sketch12.addConstraint(Sketcher.Constraint("DistanceY", 0, 2, 0, 1, 10.0))
sketch12.addConstraint(Sketcher.Constraint("DistanceX", -1, 1, 0, 2, 119.5))
sketch12.addConstraint(Sketcher.Constraint("DistanceY", 0, 2, -1, 1, 1.54))
pocket5 = body.newObject("PartDesign::Pocket", "Pocket004")
pocket5.Profile = sketch12
pocket5.Type = "ThroughAll"

# Sketch on YZ plane
sketch13 = body.newObject("Sketcher::SketchObject", "Sketch012")
sketch13.AttachmentSupport = (doc.getObject("YZ_Plane"), [""])
sketch13.MapMode = "FlatFace"
sketch13.AttachmentOffset = App.Placement(V(0, 0, 131.5), App.Rotation())
sketch13.addGeometry(Part.LineSegment(V(8, 30, 0), V(0, 30, 0)), False)
sketch13.addGeometry(Part.LineSegment(V(0, 30, 0), V(0, 50, 0)), False)
sketch13.addGeometry(Part.LineSegment(V(0, 50, 0), V(8, 50, 0)), False)
sketch13.addGeometry(Part.LineSegment(V(8, 50, 0), V(8, 30, 0)), False)
sketch13.addConstraint(Sketcher.Constraint("Coincident", 0, 2, 1, 1))
sketch13.addConstraint(Sketcher.Constraint("Coincident", 1, 2, 2, 1))
sketch13.addConstraint(Sketcher.Constraint("Coincident", 2, 2, 3, 1))
sketch13.addConstraint(Sketcher.Constraint("Coincident", 3, 2, 0, 1))
sketch13.addConstraint(Sketcher.Constraint("Horizontal", 0))
sketch13.addConstraint(Sketcher.Constraint("Vertical", 1))
sketch13.addConstraint(Sketcher.Constraint("Horizontal", 2))
sketch13.addConstraint(Sketcher.Constraint("Vertical", 3))
sketch13.addConstraint(Sketcher.Constraint("PointOnObject", 0, 2, -2))
sketch13.addConstraint(Sketcher.Constraint("DistanceY", 1, 1, 1, 2, 20.0))
sketch13.addConstraint(Sketcher.Constraint("DistanceY", -1, 1, 0, 2, 30.0))
sketch13.addConstraint(Sketcher.Constraint("DistanceX", 0, 2, 0, 1, 8.46))
pocket6 = body.newObject("PartDesign::Pocket", "Pocket005")
pocket6.Profile = sketch13
pocket6.Type = "UpToFirst"
pocket6.Reversed = True

# Sketch on XY plane
sketch14 = body.newObject("Sketcher::SketchObject", "Sketch013")
sketch14.AttachmentSupport = (doc.getObject("XY_Plane"), [""])
sketch14.MapMode = "FlatFace"
sketch14.AttachmentOffset = App.Placement(V(0, 0, 72), App.Rotation())
sketch14.addGeometry(Part.Circle(V(185.2, 115, 0), V(0, 0, 1), 2.2), False)
sketch14.addGeometry(Part.Circle(V(155.2, 115, 0), V(0, 0, 1), 2.2), False)
sketch14.addConstraint(Sketcher.Constraint("Equal", 0, 1))
sketch14.addConstraint(Sketcher.Constraint("Horizontal", 0, 3, 1, 3))
sketch14.addConstraint(Sketcher.Constraint("Diameter", 0, 4.5))
sketch14.addConstraint(Sketcher.Constraint("DistanceY", -1, 1, 0, 3, 115.0))
sketch14.addConstraint(Sketcher.Constraint("DistanceX", 1, 3, 0, 3, 30.0))
sketch14.addConstraint(Sketcher.Constraint("DistanceX", -1, 1, 0, 3, 185.25))
pocket7 = body.newObject("PartDesign::Pocket", "Pocket006")
pocket7.Profile = sketch14
pocket7.Length = 30
pocket7.Reversed = True

# Sketch on XY plane
sketch15 = body.newObject("Sketcher::SketchObject", "Sketch014")
sketch15.AttachmentSupport = (doc.getObject("XY_Plane"), [""])
sketch15.MapMode = "FlatFace"
sketch15.AttachmentOffset = App.Placement(V(0, 0, 72), App.Rotation())
sketch15.addGeometry(Part.Circle(V(54.8, 115, 0), V(0, 0, 1), 2.2), False)
sketch15.addGeometry(Part.Circle(V(24.8, 115, 0), V(0, 0, 1), 2.2), False)
sketch15.addConstraint(Sketcher.Constraint("Equal", 0, 1))
sketch15.addConstraint(Sketcher.Constraint("Horizontal", 0, 3, 1, 3))
sketch15.addConstraint(Sketcher.Constraint("Diameter", 0, 4.5))
sketch15.addConstraint(Sketcher.Constraint("DistanceY", -1, 1, 0, 3, 115.0))
sketch15.addConstraint(Sketcher.Constraint("DistanceX", 1, 3, 0, 3, 30.0))
sketch15.addConstraint(Sketcher.Constraint("DistanceX", -1, 1, 0, 3, 54.75))
pocket8 = body.newObject("PartDesign::Pocket", "Pocket007")
pocket8.Profile = sketch15
pocket8.Length = 30
pocket8.Reversed = True

doc.recompute()
